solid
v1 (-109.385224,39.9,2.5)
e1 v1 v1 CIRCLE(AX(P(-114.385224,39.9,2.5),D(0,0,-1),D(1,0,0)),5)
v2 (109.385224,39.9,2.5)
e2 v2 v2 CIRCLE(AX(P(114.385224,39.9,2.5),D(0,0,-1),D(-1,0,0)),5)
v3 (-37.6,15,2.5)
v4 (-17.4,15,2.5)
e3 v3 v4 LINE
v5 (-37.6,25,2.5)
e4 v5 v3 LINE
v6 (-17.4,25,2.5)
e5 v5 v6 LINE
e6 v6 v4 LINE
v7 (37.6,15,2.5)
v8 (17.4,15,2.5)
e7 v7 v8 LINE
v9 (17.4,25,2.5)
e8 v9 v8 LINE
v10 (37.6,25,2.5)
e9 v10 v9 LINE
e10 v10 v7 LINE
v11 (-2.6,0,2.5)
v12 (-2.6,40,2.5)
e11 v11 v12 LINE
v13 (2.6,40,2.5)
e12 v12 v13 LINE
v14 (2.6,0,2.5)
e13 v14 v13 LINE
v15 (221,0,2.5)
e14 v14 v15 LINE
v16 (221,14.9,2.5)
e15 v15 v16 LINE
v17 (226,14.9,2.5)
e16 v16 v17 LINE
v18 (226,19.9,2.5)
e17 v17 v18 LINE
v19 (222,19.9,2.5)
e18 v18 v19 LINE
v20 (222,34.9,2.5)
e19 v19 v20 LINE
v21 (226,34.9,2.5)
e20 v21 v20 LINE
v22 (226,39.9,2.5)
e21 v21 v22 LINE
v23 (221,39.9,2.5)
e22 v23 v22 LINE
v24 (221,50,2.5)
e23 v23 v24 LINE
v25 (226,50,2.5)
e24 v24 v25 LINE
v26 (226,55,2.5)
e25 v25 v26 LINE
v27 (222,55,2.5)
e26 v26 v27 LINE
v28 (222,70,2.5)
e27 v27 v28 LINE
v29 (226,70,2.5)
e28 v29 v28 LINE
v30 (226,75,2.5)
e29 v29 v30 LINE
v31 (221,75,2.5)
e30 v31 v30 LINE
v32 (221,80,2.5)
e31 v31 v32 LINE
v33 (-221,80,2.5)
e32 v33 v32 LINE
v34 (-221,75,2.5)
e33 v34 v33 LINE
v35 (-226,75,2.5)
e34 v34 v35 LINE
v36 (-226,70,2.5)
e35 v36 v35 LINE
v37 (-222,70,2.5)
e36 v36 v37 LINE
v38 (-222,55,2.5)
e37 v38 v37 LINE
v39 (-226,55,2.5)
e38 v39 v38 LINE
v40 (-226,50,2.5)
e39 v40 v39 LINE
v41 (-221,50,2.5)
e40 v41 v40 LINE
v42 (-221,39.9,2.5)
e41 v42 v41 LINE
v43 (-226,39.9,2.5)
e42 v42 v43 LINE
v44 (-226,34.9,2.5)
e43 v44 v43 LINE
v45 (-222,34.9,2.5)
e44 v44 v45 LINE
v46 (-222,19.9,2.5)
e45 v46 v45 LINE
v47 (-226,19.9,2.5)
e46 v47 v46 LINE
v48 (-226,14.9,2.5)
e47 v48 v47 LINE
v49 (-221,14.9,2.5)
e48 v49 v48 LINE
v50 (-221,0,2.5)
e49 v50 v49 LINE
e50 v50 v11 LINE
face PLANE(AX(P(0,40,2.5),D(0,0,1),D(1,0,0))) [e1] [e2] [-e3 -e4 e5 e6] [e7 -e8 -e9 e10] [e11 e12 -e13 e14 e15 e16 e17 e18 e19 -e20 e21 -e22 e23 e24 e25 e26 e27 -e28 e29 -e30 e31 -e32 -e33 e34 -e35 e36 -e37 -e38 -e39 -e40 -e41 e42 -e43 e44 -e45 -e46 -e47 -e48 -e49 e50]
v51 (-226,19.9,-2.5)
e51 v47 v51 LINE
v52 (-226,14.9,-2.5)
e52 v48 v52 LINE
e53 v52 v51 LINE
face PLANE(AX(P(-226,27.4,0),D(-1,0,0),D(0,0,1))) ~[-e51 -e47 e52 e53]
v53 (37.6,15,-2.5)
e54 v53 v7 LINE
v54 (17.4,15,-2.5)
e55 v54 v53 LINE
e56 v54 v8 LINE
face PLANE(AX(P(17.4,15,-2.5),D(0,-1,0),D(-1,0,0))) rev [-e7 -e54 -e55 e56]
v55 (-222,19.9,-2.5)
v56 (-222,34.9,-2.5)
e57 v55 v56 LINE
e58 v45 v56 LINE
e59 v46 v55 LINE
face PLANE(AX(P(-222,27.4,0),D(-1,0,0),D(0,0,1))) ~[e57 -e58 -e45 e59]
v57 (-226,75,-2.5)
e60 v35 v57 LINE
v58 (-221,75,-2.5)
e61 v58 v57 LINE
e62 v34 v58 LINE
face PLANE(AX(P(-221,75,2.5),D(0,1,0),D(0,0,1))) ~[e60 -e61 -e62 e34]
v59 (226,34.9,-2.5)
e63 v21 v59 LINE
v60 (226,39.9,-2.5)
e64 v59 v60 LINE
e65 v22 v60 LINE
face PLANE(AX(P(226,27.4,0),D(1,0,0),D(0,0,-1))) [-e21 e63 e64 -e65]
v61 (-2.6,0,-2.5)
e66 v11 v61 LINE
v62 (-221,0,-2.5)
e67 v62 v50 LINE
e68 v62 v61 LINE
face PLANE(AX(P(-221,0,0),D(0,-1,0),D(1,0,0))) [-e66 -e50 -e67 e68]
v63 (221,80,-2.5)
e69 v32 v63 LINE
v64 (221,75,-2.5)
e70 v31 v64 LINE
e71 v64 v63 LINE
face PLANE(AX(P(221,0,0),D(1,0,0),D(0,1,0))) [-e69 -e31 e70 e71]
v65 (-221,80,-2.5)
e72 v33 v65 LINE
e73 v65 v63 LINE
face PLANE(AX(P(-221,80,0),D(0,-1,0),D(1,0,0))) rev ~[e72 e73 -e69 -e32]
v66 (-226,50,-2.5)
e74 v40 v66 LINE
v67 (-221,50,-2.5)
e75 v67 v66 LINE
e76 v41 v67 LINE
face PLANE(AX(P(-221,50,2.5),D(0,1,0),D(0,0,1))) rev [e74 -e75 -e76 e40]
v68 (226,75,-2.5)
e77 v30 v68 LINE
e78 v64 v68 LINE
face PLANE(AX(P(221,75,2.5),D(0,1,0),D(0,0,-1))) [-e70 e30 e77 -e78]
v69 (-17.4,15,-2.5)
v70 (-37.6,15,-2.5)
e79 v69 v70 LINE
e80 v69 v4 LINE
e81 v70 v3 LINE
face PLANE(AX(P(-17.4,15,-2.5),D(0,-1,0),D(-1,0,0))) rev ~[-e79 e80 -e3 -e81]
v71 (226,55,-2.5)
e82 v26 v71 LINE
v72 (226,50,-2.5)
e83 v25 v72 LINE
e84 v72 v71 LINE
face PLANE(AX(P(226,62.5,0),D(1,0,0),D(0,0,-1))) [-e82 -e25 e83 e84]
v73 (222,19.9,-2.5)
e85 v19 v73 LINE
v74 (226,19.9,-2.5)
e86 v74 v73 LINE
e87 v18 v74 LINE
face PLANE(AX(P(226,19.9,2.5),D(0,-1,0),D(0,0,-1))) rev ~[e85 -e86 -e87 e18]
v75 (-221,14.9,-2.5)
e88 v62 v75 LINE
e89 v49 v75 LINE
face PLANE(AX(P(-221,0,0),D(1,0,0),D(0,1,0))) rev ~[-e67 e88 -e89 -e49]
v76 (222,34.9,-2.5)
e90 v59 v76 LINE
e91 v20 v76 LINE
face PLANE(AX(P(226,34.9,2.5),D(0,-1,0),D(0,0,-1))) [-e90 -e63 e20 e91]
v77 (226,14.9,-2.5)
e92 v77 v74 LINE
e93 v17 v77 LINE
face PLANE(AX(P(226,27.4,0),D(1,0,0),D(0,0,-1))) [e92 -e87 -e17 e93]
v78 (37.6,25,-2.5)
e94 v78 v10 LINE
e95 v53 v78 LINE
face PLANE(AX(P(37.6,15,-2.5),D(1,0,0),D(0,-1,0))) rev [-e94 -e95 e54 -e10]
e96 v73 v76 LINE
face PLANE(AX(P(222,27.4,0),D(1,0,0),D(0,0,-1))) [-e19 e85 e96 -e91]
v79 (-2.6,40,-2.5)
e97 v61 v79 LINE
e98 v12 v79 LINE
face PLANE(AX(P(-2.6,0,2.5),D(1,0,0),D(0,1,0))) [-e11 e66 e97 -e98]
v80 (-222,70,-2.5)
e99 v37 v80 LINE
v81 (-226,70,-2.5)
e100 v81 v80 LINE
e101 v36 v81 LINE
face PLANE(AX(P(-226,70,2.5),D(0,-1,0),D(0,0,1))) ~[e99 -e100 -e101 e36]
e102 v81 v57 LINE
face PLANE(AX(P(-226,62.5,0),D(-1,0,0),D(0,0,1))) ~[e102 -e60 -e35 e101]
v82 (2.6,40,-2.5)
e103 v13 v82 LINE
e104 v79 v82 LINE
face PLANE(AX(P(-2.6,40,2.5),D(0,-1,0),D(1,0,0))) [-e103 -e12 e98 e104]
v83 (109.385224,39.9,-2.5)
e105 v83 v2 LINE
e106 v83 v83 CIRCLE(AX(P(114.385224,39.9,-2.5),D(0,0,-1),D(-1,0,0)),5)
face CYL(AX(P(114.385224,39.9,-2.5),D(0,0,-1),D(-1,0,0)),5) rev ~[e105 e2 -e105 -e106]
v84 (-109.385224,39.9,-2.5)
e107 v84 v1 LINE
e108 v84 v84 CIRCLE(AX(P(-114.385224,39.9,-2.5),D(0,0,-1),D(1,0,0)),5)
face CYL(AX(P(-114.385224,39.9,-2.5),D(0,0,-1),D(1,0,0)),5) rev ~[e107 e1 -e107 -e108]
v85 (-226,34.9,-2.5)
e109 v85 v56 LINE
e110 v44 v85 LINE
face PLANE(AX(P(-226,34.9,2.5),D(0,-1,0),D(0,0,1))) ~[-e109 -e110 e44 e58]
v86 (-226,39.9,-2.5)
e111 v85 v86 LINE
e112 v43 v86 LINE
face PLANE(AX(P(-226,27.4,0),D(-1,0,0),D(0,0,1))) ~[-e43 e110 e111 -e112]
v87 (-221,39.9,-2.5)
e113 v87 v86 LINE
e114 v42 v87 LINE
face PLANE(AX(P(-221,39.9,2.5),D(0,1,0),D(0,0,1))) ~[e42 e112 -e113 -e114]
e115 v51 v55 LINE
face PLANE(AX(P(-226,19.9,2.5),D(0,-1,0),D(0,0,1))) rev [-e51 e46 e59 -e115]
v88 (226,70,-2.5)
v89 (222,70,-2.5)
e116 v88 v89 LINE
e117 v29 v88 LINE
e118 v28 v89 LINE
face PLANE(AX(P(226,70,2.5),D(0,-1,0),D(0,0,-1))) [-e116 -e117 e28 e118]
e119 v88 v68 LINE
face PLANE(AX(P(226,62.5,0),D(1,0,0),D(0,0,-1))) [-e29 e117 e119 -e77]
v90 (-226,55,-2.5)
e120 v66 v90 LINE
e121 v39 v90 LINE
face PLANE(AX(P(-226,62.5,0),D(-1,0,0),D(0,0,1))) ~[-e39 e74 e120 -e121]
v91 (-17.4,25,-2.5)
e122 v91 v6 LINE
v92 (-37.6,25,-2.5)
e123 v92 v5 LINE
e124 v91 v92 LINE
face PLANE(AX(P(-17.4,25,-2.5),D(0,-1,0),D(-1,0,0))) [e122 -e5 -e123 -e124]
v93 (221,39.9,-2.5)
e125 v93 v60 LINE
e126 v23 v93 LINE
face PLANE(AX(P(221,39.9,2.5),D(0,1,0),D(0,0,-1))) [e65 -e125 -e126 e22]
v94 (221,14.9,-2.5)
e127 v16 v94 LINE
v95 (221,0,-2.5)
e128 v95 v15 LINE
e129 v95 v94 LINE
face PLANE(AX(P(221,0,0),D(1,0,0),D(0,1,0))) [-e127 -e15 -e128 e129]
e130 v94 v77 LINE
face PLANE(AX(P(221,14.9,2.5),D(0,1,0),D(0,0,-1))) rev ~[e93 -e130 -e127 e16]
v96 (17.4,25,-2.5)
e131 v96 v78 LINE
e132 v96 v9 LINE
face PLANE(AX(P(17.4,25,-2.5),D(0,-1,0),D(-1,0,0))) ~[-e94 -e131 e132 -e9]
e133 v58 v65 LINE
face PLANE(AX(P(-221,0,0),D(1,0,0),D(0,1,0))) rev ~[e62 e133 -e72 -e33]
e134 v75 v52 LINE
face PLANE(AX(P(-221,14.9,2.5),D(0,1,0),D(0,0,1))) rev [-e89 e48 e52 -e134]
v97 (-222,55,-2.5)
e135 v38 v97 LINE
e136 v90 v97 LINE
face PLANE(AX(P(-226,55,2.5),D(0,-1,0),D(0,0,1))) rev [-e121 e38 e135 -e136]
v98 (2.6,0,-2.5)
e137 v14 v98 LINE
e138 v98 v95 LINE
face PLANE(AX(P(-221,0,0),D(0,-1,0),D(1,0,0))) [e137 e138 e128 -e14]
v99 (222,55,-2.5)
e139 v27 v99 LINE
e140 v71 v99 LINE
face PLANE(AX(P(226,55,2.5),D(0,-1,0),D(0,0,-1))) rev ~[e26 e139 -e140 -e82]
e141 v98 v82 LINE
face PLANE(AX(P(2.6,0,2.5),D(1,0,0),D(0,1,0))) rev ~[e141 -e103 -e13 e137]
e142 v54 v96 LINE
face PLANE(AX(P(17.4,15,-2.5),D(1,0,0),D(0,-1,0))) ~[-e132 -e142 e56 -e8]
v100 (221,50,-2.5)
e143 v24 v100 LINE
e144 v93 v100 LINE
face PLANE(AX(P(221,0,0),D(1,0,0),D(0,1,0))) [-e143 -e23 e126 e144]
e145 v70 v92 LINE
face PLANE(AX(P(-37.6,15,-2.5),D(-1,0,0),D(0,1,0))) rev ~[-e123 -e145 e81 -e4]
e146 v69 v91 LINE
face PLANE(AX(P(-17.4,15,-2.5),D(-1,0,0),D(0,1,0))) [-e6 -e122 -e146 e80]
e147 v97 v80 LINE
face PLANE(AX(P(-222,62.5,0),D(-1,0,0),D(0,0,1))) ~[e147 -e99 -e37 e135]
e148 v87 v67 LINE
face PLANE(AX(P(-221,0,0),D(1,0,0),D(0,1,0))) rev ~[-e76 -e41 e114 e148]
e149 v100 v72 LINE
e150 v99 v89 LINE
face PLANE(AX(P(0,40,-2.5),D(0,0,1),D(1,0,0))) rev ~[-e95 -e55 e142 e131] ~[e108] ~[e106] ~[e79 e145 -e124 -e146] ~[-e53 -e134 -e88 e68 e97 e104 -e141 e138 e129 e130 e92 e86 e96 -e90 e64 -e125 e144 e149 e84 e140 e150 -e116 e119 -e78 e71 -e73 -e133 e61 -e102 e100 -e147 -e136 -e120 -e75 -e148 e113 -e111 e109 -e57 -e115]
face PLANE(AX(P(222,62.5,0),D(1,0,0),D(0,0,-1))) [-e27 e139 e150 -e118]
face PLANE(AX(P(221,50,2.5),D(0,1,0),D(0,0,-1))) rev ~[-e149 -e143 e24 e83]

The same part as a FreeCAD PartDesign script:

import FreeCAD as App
import Part
import Sketcher

V = App.Vector


def add_polygon(sketch, points):
    """Adds a closed chain of lines whose ends are joined by coincident constraints."""
    first, n = sketch.GeometryCount, len(points)
    for a, b in zip(points, points[1:] + points[:1]):
        sketch.addGeometry(Part.LineSegment(App.Vector(*a, 0), App.Vector(*b, 0)), False)
    for i in range(n):
        sketch.addConstraint(Sketcher.Constraint("Coincident", first + i, 2, first + (i + 1) % n, 1))

doc = App.newDocument("Part")
body = doc.addObject("PartDesign::Body", "Body")

# Sketch on XY plane
sketch1 = doc.addObject("Sketcher::SketchObject", "Sketch")
body.addObject(sketch1)
sketch1.AttachmentSupport = (doc.XY_Plane, [""])
sketch1.MapMode = "FlatFace"
add_polygon(sketch1, [(-221, 80), (-221, 0), (221, 0), (221, 80)])  # lines 0-3
sketch1.addConstraint([
    Sketcher.Constraint("Vertical", 0),
    Sketcher.Constraint("Horizontal", 1),
    Sketcher.Constraint("Vertical", 2),
    Sketcher.Constraint("Horizontal", 3),
    Sketcher.Constraint("Symmetric", 0, 2, 1, 2, -1, 1),
    Sketcher.Constraint("DistanceX", 1, 1, 1, 2, 442.0),
    Sketcher.Constraint("DistanceY", 0, 2, 0, 1, 80.0),
])
pad1 = doc.addObject("PartDesign::Pad", "Pad")
body.addObject(pad1)
pad1.Profile = sketch1
pad1.Length = 5
pad1.Midplane = True

# Sketch on YZ plane
sketch2 = doc.addObject("Sketcher::SketchObject", "Sketch001")
body.addObject(sketch2)
sketch2.AttachmentSupport = (doc.YZ_Plane, [""])
sketch2.MapMode = "FlatFace"
sketch2.AttachmentOffset = App.Placement(V(0, 0, 221), App.Rotation())
add_polygon(sketch2, [(75, 2), (50, 2), (50, -2), (75, -2)])  # lines 0-3
add_polygon(sketch2, [(40, 2), (15, 2), (15, -2), (40, -2)])  # lines 4-7
sketch2.addConstraint([
    Sketcher.Constraint("Horizontal", 0),
    Sketcher.Constraint("Vertical", 1),
    Sketcher.Constraint("Horizontal", 2),
    Sketcher.Constraint("Vertical", 3),
    Sketcher.Constraint("Horizontal", 4),
    Sketcher.Constraint("Vertical", 5),
    Sketcher.Constraint("Horizontal", 6),
    Sketcher.Constraint("Vertical", 7),
    Sketcher.Constraint("Horizontal", 3, 2, 4, 2),
    Sketcher.Constraint("Horizontal", 2, 2, 5, 2),
    Sketcher.Constraint("Equal", 2, 4),
    Sketcher.Constraint("DistanceX", 0, 2, 0, 1, 25.0),
    Sketcher.Constraint("DistanceY", 1, 2, 1, 1, 5.0),
    Sketcher.Constraint("DistanceX", -1, 1, 0, 2, 50.0),
    Sketcher.Constraint("DistanceY", -1, 1, 0, 2, 2.5),
    Sketcher.Constraint("DistanceX", -1, 1, 4, 2, 14.9),
])
pad2 = doc.addObject("PartDesign::Pad", "Pad001")
body.addObject(pad2)
pad2.Profile = sketch2
pad2.Length = 5

# Sketch on YZ plane
sketch3 = doc.addObject("Sketcher::SketchObject", "Sketch002")
body.addObject(sketch3)
sketch3.AttachmentSupport = (doc.YZ_Plane, [""])
sketch3.MapMode = "FlatFace"
sketch3.AttachmentOffset = App.Placement(V(0, 0, 226), App.Rotation())
add_polygon(sketch3, [(70, 2), (55, 2), (55, -2), (70, -2)])  # lines 0-3
add_polygon(sketch3, [(35, 2), (20, 2), (20, -2), (35, -2)])  # lines 4-7
sketch3.addConstraint([
    Sketcher.Constraint("Horizontal", 0),
    Sketcher.Constraint("Vertical", 1),
    Sketcher.Constraint("Horizontal", 2),
    Sketcher.Constraint("Vertical", 3),
    Sketcher.Constraint("Horizontal", 4),
    Sketcher.Constraint("Vertical", 5),
    Sketcher.Constraint("Horizontal", 6),
    Sketcher.Constraint("Vertical", 7),
    Sketcher.Constraint("Horizontal", 3, 2, 4, 2),
    Sketcher.Constraint("Horizontal", 2, 2, 5, 2),
    Sketcher.Constraint("Equal", 2, 4),
    Sketcher.Constraint("DistanceX", 0, 2, 0, 1, 15.0),
    Sketcher.Constraint("DistanceY", 1, 2, 1, 1, 5.0),
    Sketcher.Constraint("DistanceX", -1, 1, 0, 2, 55.0),
    Sketcher.Constraint("DistanceY", -1, 1, 0, 2, 2.5),
    Sketcher.Constraint("DistanceX", -1, 1, 4, 2, 19.9),
])
pocket1 = doc.addObject("PartDesign::Pocket", "Pocket")
body.addObject(pocket1)
pocket1.Profile = sketch3
pocket1.Length = 4
doc.recompute()

mirrored = doc.addObject("PartDesign::Mirrored", "Mirrored")
body.addObject(mirrored)
mirrored.Originals = [pad2, pocket1]
mirrored.MirrorPlane = (doc.YZ_Plane, [""])
body.Tip = mirrored

# Sketch on XY plane
sketch4 = doc.addObject("Sketcher::SketchObject", "Sketch003")
body.addObject(sketch4)
sketch4.AttachmentSupport = (doc.XY_Plane, [""])
sketch4.MapMode = "FlatFace"
sketch4.AttachmentOffset = App.Placement(V(0, 0, 2.5), App.Rotation())
add_polygon(sketch4, [(-3, 40), (-3, 0), (3, 0), (3, 40)])  # lines 0-3
sketch4.addConstraint([
    Sketcher.Constraint("Vertical", 0),
    Sketcher.Constraint("Horizontal", 1),
    Sketcher.Constraint("Vertical", 2),
    Sketcher.Constraint("Horizontal", 3),
    Sketcher.Constraint("Symmetric", 0, 2, 1, 2, -1, 1),
    Sketcher.Constraint("DistanceY", 0, 2, 0, 1, 40.0),
    Sketcher.Constraint("DistanceX", 1, 1, 1, 2, 5.2),
])
pocket2 = doc.addObject("PartDesign::Pocket", "Pocket001")
body.addObject(pocket2)
pocket2.Profile = sketch4
pocket2.Length = 10

# Sketch on XY plane
sketch5 = doc.addObject("Sketcher::SketchObject", "Sketch004")
body.addObject(sketch5)
sketch5.AttachmentSupport = (doc.XY_Plane, [""])
sketch5.MapMode = "FlatFace"
sketch5.AttachmentOffset = App.Placement(V(0, 0, -2.5), App.Rotation())
add_polygon(sketch5, [(-17, 25), (-17, 15), (-38, 15), (-38, 25)])  # lines 0-3
sketch5.addConstraint([
    Sketcher.Constraint("Vertical", 0),
    Sketcher.Constraint("Horizontal", 1),
    Sketcher.Constraint("Vertical", 2),
    Sketcher.Constraint("Horizontal", 3),
    Sketcher.Constraint("DistanceY", 0, 2, 0, 1, 10.0),
    Sketcher.Constraint("DistanceX", 1, 2, 1, 1, 20.2),
    Sketcher.Constraint("DistanceY", -1, 1, 0, 2, 15.0),
    Sketcher.Constraint("DistanceX", 0, 2, -1, 1, 17.4),
])
pocket3 = doc.addObject("PartDesign::Pocket", "Pocket002")
body.addObject(pocket3)
pocket3.Profile = sketch5
pocket3.Length = 300
pocket3.Reversed = True
doc.recompute()

mirrored2 = doc.addObject("PartDesign::Mirrored", "Mirrored001")
body.addObject(mirrored2)
mirrored2.Originals = [pocket3]
mirrored2.MirrorPlane = (doc.YZ_Plane, [""])
body.Tip = mirrored2

# Sketch on XY plane
sketch6 = doc.addObject("Sketcher::SketchObject", "Sketch005")
body.addObject(sketch6)
sketch6.AttachmentSupport = (doc.XY_Plane, [""])
sketch6.MapMode = "FlatFace"
sketch6.AttachmentOffset = App.Placement(V(0, 0, -2.5), App.Rotation())
sketch6.addGeometry([
    Part.Circle(V(114, 40, 0), V(0, 0, 1), 5),
    Part.Circle(V(-114, 40, 0), V(0, 0, 1), 5),
], False)
sketch6.addConstraint([
    Sketcher.Constraint("Equal", 0, 1),
    Sketcher.Constraint("Symmetric", 0, 3, 1, 3, -2),
    Sketcher.Constraint("Diameter", 0, 10.0),
    Sketcher.Constraint("DistanceY", -1, 1, 0, 3, 39.9),
    Sketcher.Constraint("DistanceX", 1, 3, 0, 3, 228.770449),
])
pocket4 = doc.addObject("PartDesign::Pocket", "Pocket003")
body.addObject(pocket4)
pocket4.Profile = sketch6
pocket4.Length = 10
pocket4.Reversed = True

doc.recompute()
